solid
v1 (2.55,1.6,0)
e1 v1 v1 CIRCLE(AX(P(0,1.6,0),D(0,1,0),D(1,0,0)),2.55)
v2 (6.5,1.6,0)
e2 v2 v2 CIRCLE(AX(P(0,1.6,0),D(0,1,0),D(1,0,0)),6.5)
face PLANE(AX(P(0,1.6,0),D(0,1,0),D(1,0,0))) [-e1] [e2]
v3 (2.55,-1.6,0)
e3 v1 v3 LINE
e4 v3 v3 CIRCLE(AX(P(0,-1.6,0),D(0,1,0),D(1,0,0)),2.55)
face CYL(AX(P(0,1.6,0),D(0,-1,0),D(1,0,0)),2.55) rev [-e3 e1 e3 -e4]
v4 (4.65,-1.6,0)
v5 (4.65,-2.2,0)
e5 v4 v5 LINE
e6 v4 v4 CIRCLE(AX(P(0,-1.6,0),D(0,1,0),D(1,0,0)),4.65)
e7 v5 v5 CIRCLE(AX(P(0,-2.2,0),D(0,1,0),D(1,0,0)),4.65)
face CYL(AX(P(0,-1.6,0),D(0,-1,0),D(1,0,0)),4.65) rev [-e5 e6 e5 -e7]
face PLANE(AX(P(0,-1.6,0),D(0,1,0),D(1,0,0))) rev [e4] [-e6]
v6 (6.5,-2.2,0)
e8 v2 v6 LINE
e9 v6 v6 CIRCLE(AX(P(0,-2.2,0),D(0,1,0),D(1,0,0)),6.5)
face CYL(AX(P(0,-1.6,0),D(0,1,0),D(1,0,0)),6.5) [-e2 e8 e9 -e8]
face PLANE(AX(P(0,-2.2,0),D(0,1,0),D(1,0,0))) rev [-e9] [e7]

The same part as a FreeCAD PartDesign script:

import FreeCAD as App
import Part
import Sketcher

V = App.Vector
Q = App.Units.Quantity

doc = App.newDocument("Part")
params = doc.addObject("Spreadsheet::Sheet", "Params")
for row, (alias, value) in enumerate([
    ("sketch1_height", "3.2 mm"),
    ("sketch1_height2", "0.6 mm"),
    ("revolution_angle", "360 deg"),
], start=1):
    params.set(f"A{row}", alias)
    params.set(f"B{row}", "=" + value)
    params.setAlias(f"B{row}", alias)

body = doc.addObject("PartDesign::Body", "Body")

# Sketch on XY plane
sketch1 = body.newObject("Sketcher::SketchObject", "Sketch")
sketch1.AttachmentSupport = (doc.getObject("XY_Plane"), [""])
sketch1.MapMode = "FlatFace"
sketch1.addGeometry(Part.LineSegment(V(6.5, 1.6, 0), V(2.55, 1.6, 0)), False)
sketch1.addGeometry(Part.LineSegment(V(2.55, 1.6, 0), V(2.55, -1.6, 0)), False)
sketch1.addGeometry(Part.LineSegment(V(2.55, -1.6, 0), V(4.65, -1.6, 0)), False)
sketch1.addGeometry(Part.LineSegment(V(4.65, -1.6, 0), V(4.65, -2.2, 0)), False)
sketch1.addGeometry(Part.LineSegment(V(4.65, -2.2, 0), V(6.5, -2.2, 0)), False)
sketch1.addGeometry(Part.LineSegment(V(6.5, -2.2, 0), V(6.5, 1.6, 0)), False)
sketch1.addConstraint(Sketcher.Constraint("Coincident", 0, 2, 1, 1))
sketch1.addConstraint(Sketcher.Constraint("Coincident", 1, 2, 2, 1))
sketch1.addConstraint(Sketcher.Constraint("Coincident", 2, 2, 3, 1))
sketch1.addConstraint(Sketcher.Constraint("Coincident", 3, 2, 4, 1))
sketch1.addConstraint(Sketcher.Constraint("Coincident", 4, 2, 5, 1))
sketch1.addConstraint(Sketcher.Constraint("Coincident", 5, 2, 0, 1))
sketch1.addConstraint(Sketcher.Constraint("Horizontal", 0))
sketch1.addConstraint(Sketcher.Constraint("Vertical", 1))
sketch1.addConstraint(Sketcher.Constraint("Horizontal", 2))
sketch1.addConstraint(Sketcher.Constraint("Vertical", 3))
sketch1.addConstraint(Sketcher.Constraint("Horizontal", 4))
sketch1.addConstraint(Sketcher.Constraint("Vertical", 5))
sketch1.addConstraint(Sketcher.Constraint("DistanceY", 1, 2, 1, 1, Q("3.2 mm")))
sketch1.addConstraint(Sketcher.Constraint("DistanceY", 3, 2, 3, 1, Q("0.6 mm")))
sketch1.addConstraint(Sketcher.Constraint("DistanceX", -1, 1, 4, 2, Q("6.5 mm")))
sketch1.addConstraint(Sketcher.Constraint("DistanceX", -1, 1, 0, 2, Q("2.55 mm")))
sketch1.addConstraint(Sketcher.Constraint("DistanceX", -1, 1, 2, 2, Q("4.65 mm")))
sketch1.addConstraint(Sketcher.Constraint("DistanceY", -1, 1, 0, 2, Q("1.6 mm")))
sketch1.setExpression("Constraints[12]", "Params.sketch1_height")
sketch1.setExpression("Constraints[13]", "Params.sketch1_height2")
revolution = body.newObject("PartDesign::Revolution", "Revolution")
revolution.Profile = sketch1
revolution.ReferenceAxis = (sketch1, ["V_Axis"])
revolution.setExpression("Angle", "Params.revolution_angle")

doc.recompute()
